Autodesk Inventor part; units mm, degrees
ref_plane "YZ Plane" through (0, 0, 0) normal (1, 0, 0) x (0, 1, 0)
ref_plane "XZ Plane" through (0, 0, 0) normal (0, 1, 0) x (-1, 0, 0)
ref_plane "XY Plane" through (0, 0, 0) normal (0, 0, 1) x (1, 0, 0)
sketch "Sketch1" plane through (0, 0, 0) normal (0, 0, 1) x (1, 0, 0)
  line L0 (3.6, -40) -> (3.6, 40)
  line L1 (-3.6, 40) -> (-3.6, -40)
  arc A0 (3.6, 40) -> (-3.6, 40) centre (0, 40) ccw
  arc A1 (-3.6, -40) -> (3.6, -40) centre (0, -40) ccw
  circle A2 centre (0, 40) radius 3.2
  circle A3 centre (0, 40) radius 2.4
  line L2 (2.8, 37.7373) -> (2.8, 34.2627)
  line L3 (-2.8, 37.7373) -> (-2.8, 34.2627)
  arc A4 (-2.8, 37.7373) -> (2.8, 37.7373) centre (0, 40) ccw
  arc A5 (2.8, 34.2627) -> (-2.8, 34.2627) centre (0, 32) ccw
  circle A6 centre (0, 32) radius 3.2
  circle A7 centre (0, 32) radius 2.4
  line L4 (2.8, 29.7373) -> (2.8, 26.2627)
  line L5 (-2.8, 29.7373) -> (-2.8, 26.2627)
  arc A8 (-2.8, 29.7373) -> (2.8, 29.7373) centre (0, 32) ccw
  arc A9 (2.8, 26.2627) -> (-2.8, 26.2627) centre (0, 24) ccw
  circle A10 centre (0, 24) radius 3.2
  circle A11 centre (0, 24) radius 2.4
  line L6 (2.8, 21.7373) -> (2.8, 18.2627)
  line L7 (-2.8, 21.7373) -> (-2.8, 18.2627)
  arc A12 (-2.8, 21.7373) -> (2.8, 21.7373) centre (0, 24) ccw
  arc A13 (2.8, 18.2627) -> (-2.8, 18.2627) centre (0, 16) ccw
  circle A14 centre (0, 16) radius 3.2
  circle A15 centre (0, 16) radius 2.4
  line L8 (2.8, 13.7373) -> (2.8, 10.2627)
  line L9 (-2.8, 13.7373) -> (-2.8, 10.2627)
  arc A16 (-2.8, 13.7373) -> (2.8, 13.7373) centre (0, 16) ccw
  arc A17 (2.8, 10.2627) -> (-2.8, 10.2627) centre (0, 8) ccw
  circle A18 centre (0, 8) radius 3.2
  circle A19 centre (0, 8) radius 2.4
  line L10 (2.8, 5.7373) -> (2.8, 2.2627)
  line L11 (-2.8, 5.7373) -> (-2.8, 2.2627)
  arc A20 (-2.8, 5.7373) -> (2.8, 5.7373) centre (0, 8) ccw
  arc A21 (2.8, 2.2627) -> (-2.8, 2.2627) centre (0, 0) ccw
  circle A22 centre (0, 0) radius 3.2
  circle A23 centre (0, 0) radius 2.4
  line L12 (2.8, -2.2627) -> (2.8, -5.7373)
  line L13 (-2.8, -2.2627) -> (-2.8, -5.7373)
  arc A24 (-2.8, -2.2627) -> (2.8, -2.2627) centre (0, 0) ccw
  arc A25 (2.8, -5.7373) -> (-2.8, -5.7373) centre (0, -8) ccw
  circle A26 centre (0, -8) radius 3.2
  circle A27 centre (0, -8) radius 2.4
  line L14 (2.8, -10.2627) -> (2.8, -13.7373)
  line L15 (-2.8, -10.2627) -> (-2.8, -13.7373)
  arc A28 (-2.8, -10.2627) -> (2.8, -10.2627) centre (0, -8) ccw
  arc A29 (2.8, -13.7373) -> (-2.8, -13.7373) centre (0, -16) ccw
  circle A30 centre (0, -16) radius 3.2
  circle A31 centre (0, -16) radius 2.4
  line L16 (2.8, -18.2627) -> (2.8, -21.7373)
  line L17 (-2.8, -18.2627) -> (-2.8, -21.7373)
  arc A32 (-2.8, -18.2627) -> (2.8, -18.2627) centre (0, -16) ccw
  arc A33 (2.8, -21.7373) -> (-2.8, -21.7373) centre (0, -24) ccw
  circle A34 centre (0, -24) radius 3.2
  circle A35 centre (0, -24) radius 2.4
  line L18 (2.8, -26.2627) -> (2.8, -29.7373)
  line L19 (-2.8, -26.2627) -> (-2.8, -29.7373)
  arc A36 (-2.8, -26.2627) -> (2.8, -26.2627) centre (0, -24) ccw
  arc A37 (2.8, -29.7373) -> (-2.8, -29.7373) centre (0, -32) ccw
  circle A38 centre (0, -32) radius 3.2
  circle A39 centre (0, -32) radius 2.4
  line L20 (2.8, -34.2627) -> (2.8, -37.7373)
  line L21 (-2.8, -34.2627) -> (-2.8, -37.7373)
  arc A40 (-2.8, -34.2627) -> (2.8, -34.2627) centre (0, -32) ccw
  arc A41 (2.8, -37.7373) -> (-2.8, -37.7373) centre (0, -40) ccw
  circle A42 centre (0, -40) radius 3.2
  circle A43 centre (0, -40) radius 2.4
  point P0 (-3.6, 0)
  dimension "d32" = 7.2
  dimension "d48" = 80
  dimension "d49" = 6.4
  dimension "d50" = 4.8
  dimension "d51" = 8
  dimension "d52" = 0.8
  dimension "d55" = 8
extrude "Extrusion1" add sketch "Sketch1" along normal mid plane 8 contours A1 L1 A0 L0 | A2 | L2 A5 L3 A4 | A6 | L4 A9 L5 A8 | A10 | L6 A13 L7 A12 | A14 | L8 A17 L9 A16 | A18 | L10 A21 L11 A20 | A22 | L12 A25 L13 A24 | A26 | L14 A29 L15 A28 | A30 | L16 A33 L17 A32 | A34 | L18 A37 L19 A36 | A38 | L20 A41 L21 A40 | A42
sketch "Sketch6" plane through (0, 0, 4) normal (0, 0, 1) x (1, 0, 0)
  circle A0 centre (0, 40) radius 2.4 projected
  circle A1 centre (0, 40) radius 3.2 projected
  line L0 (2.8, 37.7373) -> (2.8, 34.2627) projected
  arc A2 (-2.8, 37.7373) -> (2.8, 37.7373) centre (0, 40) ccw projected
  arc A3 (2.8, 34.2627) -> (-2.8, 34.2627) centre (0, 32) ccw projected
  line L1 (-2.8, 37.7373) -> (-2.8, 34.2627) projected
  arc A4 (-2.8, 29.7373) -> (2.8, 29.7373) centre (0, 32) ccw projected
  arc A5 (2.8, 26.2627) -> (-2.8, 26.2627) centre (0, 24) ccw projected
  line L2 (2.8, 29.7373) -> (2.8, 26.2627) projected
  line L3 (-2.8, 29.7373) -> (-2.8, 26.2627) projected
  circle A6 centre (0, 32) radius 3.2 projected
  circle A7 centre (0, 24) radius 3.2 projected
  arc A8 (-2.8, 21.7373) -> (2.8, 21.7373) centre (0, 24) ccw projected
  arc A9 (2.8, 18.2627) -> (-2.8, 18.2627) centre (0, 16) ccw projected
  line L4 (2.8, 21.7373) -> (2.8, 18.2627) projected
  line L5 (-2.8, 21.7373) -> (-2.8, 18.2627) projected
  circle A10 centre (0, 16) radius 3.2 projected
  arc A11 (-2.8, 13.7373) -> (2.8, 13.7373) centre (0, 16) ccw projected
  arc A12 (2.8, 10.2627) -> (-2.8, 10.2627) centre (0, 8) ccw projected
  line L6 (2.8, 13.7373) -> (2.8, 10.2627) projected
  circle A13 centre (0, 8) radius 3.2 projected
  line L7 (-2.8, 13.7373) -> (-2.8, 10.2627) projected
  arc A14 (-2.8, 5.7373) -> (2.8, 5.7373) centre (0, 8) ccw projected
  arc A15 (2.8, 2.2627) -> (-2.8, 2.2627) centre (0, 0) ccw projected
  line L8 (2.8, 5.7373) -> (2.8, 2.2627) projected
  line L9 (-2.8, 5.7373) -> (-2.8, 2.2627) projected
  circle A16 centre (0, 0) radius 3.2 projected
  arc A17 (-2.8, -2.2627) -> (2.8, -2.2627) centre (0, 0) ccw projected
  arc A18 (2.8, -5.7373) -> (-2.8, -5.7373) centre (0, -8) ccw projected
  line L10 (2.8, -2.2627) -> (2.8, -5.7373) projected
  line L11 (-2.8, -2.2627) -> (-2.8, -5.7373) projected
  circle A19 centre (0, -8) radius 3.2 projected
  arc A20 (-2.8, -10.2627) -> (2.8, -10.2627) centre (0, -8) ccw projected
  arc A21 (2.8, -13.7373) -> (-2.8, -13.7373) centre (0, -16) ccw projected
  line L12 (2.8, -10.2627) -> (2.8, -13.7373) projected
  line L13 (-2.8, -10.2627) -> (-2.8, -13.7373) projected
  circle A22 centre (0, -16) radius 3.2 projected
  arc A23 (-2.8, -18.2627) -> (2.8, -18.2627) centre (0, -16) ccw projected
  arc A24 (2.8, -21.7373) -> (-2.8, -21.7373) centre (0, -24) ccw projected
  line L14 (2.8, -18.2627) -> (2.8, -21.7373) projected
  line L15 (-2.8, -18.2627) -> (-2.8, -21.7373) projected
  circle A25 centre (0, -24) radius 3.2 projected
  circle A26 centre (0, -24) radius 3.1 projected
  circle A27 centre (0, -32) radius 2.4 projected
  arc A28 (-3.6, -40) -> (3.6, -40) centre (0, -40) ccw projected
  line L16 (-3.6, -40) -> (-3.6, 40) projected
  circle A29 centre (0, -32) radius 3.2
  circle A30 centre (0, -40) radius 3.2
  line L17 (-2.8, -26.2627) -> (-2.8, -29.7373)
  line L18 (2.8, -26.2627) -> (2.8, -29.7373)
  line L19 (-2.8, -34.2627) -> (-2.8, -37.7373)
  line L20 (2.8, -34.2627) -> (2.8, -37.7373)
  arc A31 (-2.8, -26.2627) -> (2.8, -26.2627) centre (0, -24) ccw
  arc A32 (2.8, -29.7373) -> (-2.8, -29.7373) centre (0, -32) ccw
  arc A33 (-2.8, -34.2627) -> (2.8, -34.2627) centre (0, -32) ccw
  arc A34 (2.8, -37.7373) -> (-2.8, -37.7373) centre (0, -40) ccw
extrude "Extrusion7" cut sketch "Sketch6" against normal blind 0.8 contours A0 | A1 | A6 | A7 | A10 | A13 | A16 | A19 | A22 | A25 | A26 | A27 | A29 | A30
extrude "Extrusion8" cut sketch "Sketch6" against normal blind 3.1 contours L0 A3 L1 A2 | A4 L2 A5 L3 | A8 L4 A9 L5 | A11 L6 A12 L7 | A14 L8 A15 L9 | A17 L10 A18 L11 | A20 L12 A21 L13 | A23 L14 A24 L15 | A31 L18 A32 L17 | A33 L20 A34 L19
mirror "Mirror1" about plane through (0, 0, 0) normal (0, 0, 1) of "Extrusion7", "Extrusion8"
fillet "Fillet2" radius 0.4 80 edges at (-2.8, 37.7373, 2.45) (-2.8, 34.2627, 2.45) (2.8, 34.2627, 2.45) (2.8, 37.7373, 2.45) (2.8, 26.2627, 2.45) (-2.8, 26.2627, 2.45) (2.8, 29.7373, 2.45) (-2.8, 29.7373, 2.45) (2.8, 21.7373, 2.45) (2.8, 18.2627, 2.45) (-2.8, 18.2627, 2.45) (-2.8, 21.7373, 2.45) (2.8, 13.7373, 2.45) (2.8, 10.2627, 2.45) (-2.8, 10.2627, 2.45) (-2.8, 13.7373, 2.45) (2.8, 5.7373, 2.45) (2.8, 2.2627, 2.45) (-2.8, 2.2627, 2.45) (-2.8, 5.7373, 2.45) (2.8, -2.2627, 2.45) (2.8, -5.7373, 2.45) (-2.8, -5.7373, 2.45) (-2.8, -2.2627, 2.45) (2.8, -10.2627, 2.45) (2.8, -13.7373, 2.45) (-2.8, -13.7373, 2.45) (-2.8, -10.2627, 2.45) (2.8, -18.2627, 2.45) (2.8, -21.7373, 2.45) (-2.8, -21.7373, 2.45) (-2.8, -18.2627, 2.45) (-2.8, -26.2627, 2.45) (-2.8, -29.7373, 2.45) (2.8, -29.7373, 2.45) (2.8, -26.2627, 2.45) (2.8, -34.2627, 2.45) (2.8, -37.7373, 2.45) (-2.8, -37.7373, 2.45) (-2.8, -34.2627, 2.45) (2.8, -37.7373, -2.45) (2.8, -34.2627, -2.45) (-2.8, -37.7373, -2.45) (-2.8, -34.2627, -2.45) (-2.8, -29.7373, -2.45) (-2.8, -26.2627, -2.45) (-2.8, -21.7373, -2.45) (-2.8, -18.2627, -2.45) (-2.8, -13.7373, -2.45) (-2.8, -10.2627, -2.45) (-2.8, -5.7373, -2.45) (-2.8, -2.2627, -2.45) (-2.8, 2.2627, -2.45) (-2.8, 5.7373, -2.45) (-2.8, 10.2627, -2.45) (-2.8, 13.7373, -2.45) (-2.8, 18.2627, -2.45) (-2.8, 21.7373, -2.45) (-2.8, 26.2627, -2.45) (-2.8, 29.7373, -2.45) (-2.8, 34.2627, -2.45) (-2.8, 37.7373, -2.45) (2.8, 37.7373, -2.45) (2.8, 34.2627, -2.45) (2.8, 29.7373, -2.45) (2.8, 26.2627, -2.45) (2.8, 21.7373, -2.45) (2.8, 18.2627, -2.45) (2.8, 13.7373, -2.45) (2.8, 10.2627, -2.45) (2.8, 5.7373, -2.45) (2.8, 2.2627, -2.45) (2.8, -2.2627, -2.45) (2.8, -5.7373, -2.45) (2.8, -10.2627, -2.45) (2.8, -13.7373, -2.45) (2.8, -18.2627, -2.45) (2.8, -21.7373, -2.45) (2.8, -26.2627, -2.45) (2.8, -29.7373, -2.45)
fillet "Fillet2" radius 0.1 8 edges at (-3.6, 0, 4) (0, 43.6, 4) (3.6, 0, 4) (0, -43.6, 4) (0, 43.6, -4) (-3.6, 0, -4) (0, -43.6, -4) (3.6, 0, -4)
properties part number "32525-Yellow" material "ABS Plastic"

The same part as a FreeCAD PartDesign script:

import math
import FreeCAD as App
import Part
import Sketcher


def edges_at(feature, points):
    """Names of the edges that pass closest to the given points."""
    edges = feature.Shape.Edges
    near = lambda p: min(range(len(edges)), key=lambda i: edges[i].distToShape(Part.Vertex(*p))[0])
    return sorted({f"Edge{near(p) + 1}" for p in points})

doc = App.newDocument("Part")
body = doc.addObject("PartDesign::Body", "Body")

# Sketch on XY plane
sketch1 = body.newObject("Sketcher::SketchObject", "Sketch")
sketch1.AttachmentSupport = (doc.getObject("XY_Plane"), [""])
sketch1.MapMode = "FlatFace"
sketch1.addGeometry(Part.ArcOfCircle(Part.Circle(App.Vector(0, -40, 0), App.Vector(0, 0, 1), 3.6), math.radians(180), math.radians(360)), False)
sketch1.addGeometry(Part.LineSegment(App.Vector(3.6, -40, 0), App.Vector(3.6, 40, 0)), False)
sketch1.addGeometry(Part.ArcOfCircle(Part.Circle(App.Vector(0, 40, 0), App.Vector(0, 0, 1), 3.6), math.radians(0), math.radians(180)), False)
sketch1.addGeometry(Part.LineSegment(App.Vector(-3.6, 40, 0), App.Vector(-3.6, -40, 0)), False)
sketch1.addGeometry(Part.Circle(App.Vector(0, -40, 0), App.Vector(0, 0, 1), 2.4), False)
sketch1.addGeometry(Part.Circle(App.Vector(0, -32, 0), App.Vector(0, 0, 1), 2.4), False)
sketch1.addGeometry(Part.Circle(App.Vector(0, -24, 0), App.Vector(0, 0, 1), 2.4), False)
sketch1.addGeometry(Part.Circle(App.Vector(0, -16, 0), App.Vector(0, 0, 1), 2.4), False)
sketch1.addGeometry(Part.Circle(App.Vector(0, -8, 0), App.Vector(0, 0, 1), 2.4), False)
sketch1.addGeometry(Part.Circle(App.Vector(0, 0, 0), App.Vector(0, 0, 1), 2.4), False)
sketch1.addGeometry(Part.Circle(App.Vector(0, 8, 0), App.Vector(0, 0, 1), 2.4), False)
sketch1.addGeometry(Part.Circle(App.Vector(0, 16, 0), App.Vector(0, 0, 1), 2.4), False)
sketch1.addGeometry(Part.Circle(App.Vector(0, 24, 0), App.Vector(0, 0, 1), 2.4), False)
sketch1.addGeometry(Part.Circle(App.Vector(0, 32, 0), App.Vector(0, 0, 1), 2.4), False)
sketch1.addGeometry(Part.Circle(App.Vector(0, 40, 0), App.Vector(0, 0, 1), 2.4), False)
sketch1.addConstraint(Sketcher.Constraint("Tangent", 0, 2, 1, 1))
sketch1.addConstraint(Sketcher.Constraint("Tangent", 1, 2, 2, 1))
sketch1.addConstraint(Sketcher.Constraint("Tangent", 2, 2, 3, 1))
sketch1.addConstraint(Sketcher.Constraint("Tangent", 3, 2, 0, 1))
sketch1.addConstraint(Sketcher.Constraint("Vertical", 1))
sketch1.addConstraint(Sketcher.Constraint("Vertical", 3))
sketch1.addConstraint(Sketcher.Constraint("Coincident", 9, 3, -1, 1))
sketch1.addConstraint(Sketcher.Constraint("Coincident", 4, 3, 0, 3))
sketch1.addConstraint(Sketcher.Constraint("Coincident", 14, 3, 2, 3))
sketch1.addConstraint(Sketcher.Constraint("Equal", 4, 5))
sketch1.addConstraint(Sketcher.Constraint("Equal", 5, 6))
sketch1.addConstraint(Sketcher.Constraint("Equal", 6, 7))
sketch1.addConstraint(Sketcher.Constraint("Equal", 7, 8))
sketch1.addConstraint(Sketcher.Constraint("Equal", 8, 9))
sketch1.addConstraint(Sketcher.Constraint("Equal", 9, 10))
sketch1.addConstraint(Sketcher.Constraint("Equal", 10, 11))
sketch1.addConstraint(Sketcher.Constraint("Equal", 11, 12))
sketch1.addConstraint(Sketcher.Constraint("Equal", 12, 13))
sketch1.addConstraint(Sketcher.Constraint("Equal", 13, 14))
sketch1.addConstraint(Sketcher.Constraint("Symmetric", 0, 3, 2, 3, -1, 1))
sketch1.addConstraint(Sketcher.Constraint("Symmetric", 8, 3, 10, 3, -1, 1))
sketch1.addConstraint(Sketcher.Constraint("Symmetric", 7, 3, 11, 3, -1, 1))
sketch1.addConstraint(Sketcher.Constraint("Symmetric", 6, 3, 12, 3, -1, 1))
sketch1.addConstraint(Sketcher.Constraint("Symmetric", 5, 3, 13, 3, -1, 1))
sketch1.addConstraint(Sketcher.Constraint("PointOnObject", 5, 3, -2))
sketch1.addConstraint(Sketcher.Constraint("PointOnObject", 6, 3, -2))
sketch1.addConstraint(Sketcher.Constraint("PointOnObject", 7, 3, -2))
sketch1.addConstraint(Sketcher.Constraint("PointOnObject", 8, 3, -2))
sketch1.addConstraint(Sketcher.Constraint("Diameter", 4, 4.8))
sketch1.addConstraint(Sketcher.Constraint("Radius", 0, 3.6))
sketch1.addConstraint(Sketcher.Constraint("DistanceY", 1, 1, 1, 2, 80.0))
sketch1.addConstraint(Sketcher.Constraint("DistanceY", 8, 3, -1, 1, 8.0))
sketch1.addConstraint(Sketcher.Constraint("DistanceY", 0, 3, 5, 3, 8.0))
sketch1.addConstraint(Sketcher.Constraint("DistanceY", 5, 3, 6, 3, 8.0))
sketch1.addConstraint(Sketcher.Constraint("DistanceY", 6, 3, 7, 3, 8.0))
pad1 = body.newObject("PartDesign::Pad", "Pad")
pad1.Profile = sketch1
pad1.Length = 8
pad1.Midplane = True

# Sketch on XY plane
sketch2 = body.newObject("Sketcher::SketchObject", "Sketch001")
sketch2.AttachmentSupport = (doc.getObject("XY_Plane"), [""])
sketch2.MapMode = "FlatFace"
sketch2.AttachmentOffset = App.Placement(App.Vector(0, 0, 4), App.Rotation())
sketch2.addGeometry(Part.Circle(App.Vector(0, 40, 0), App.Vector(0, 0, 1), 3.2), False)
sketch2.addGeometry(Part.Circle(App.Vector(0, 32, 0), App.Vector(0, 0, 1), 3.2), False)
sketch2.addGeometry(Part.Circle(App.Vector(0, 24, 0), App.Vector(0, 0, 1), 3.2), False)
sketch2.addGeometry(Part.Circle(App.Vector(0, 16, 0), App.Vector(0, 0, 1), 3.2), False)
sketch2.addGeometry(Part.Circle(App.Vector(0, 8, 0), App.Vector(0, 0, 1), 3.2), False)
sketch2.addGeometry(Part.Circle(App.Vector(0, 0, 0), App.Vector(0, 0, 1), 3.2), False)
sketch2.addGeometry(Part.Circle(App.Vector(0, -8, 0), App.Vector(0, 0, 1), 3.2), False)
sketch2.addGeometry(Part.Circle(App.Vector(0, -16, 0), App.Vector(0, 0, 1), 3.2), False)
sketch2.addGeometry(Part.Circle(App.Vector(0, -24, 0), App.Vector(0, 0, 1), 3.2), False)
sketch2.addGeometry(Part.Circle(App.Vector(0, -32, 0), App.Vector(0, 0, 1), 3.2), False)
sketch2.addGeometry(Part.Circle(App.Vector(0, -40, 0), App.Vector(0, 0, 1), 3.2), False)
sketch2.addConstraint(Sketcher.Constraint("Coincident", 5, 3, -1, 1))
sketch2.addConstraint(Sketcher.Constraint("Equal", 0, 1))
sketch2.addConstraint(Sketcher.Constraint("Equal", 1, 2))
sketch2.addConstraint(Sketcher.Constraint("Equal", 2, 3))
sketch2.addConstraint(Sketcher.Constraint("Equal", 3, 4))
sketch2.addConstraint(Sketcher.Constraint("Equal", 4, 5))
sketch2.addConstraint(Sketcher.Constraint("Equal", 5, 6))
sketch2.addConstraint(Sketcher.Constraint("Equal", 6, 7))
sketch2.addConstraint(Sketcher.Constraint("Equal", 7, 8))
sketch2.addConstraint(Sketcher.Constraint("Equal", 8, 9))
sketch2.addConstraint(Sketcher.Constraint("Equal", 9, 10))
sketch2.addConstraint(Sketcher.Constraint("Symmetric", 4, 3, 6, 3, -1, 1))
sketch2.addConstraint(Sketcher.Constraint("Symmetric", 3, 3, 7, 3, -1, 1))
sketch2.addConstraint(Sketcher.Constraint("Symmetric", 2, 3, 8, 3, -1, 1))
sketch2.addConstraint(Sketcher.Constraint("Symmetric", 1, 3, 9, 3, -1, 1))
sketch2.addConstraint(Sketcher.Constraint("Symmetric", 0, 3, 10, 3, -1, 1))
sketch2.addConstraint(Sketcher.Constraint("PointOnObject", 0, 3, -2))
sketch2.addConstraint(Sketcher.Constraint("PointOnObject", 1, 3, -2))
sketch2.addConstraint(Sketcher.Constraint("PointOnObject", 2, 3, -2))
sketch2.addConstraint(Sketcher.Constraint("PointOnObject", 3, 3, -2))
sketch2.addConstraint(Sketcher.Constraint("PointOnObject", 4, 3, -2))
sketch2.addConstraint(Sketcher.Constraint("Diameter", 0, 6.4))
sketch2.addConstraint(Sketcher.Constraint("DistanceY", -1, 1, 0, 3, 40.0))
sketch2.addConstraint(Sketcher.Constraint("DistanceY", -1, 1, 1, 3, 32.0))
sketch2.addConstraint(Sketcher.Constraint("DistanceY", -1, 1, 2, 3, 24.0))
sketch2.addConstraint(Sketcher.Constraint("DistanceY", -1, 1, 3, 3, 16.0))
sketch2.addConstraint(Sketcher.Constraint("DistanceY", -1, 1, 4, 3, 8.0))
pocket1 = body.newObject("PartDesign::Pocket", "Pocket")
pocket1.Profile = sketch2
pocket1.Length = 0.8

# Sketch on XY plane
sketch3 = body.newObject("Sketcher::SketchObject", "Sketch002")
sketch3.AttachmentSupport = (doc.getObject("XY_Plane"), [""])
sketch3.MapMode = "FlatFace"
sketch3.AttachmentOffset = App.Placement(App.Vector(0, 0, 4), App.Rotation())
sketch3.addGeometry(Part.LineSegment(App.Vector(2.8, 34.3, 0), App.Vector(2.8, 37.7, 0)), False)
sketch3.addGeometry(Part.ArcOfCircle(Part.Circle(App.Vector(0, 40, 0), App.Vector(0, 0, 1), 3.6), math.radians(-141), math.radians(-39)), False)
sketch3.addGeometry(Part.LineSegment(App.Vector(-2.8, 37.7, 0), App.Vector(-2.8, 34.3, 0)), False)
sketch3.addGeometry(Part.ArcOfCircle(Part.Circle(App.Vector(0, 32, 0), App.Vector(0, 0, 1), 3.6), math.radians(39), math.radians(141)), False)
sketch3.addGeometry(Part.ArcOfCircle(Part.Circle(App.Vector(0, 32, 0), App.Vector(0, 0, 1), 3.6), math.radians(-141), math.radians(-39)), False)
sketch3.addGeometry(Part.LineSegment(App.Vector(-2.8, 29.7, 0), App.Vector(-2.8, 26.3, 0)), False)
sketch3.addGeometry(Part.ArcOfCircle(Part.Circle(App.Vector(0, 24, 0), App.Vector(0, 0, 1), 3.6), math.radians(39), math.radians(141)), False)
sketch3.addGeometry(Part.LineSegment(App.Vector(2.8, 26.3, 0), App.Vector(2.8, 29.7, 0)), False)
sketch3.addGeometry(Part.ArcOfCircle(Part.Circle(App.Vector(0, 24, 0), App.Vector(0, 0, 1), 3.6), math.radians(-141), math.radians(-39)), False)
sketch3.addGeometry(Part.LineSegment(App.Vector(-2.8, 21.7, 0), App.Vector(-2.8, 18.3, 0)), False)
sketch3.addGeometry(Part.ArcOfCircle(Part.Circle(App.Vector(0, 16, 0), App.Vector(0, 0, 1), 3.6), math.radians(39), math.radians(141)), False)
sketch3.addGeometry(Part.LineSegment(App.Vector(2.8, 18.3, 0), App.Vector(2.8, 21.7, 0)), False)
sketch3.addGeometry(Part.ArcOfCircle(Part.Circle(App.Vector(0, 16, 0), App.Vector(0, 0, 1), 3.6), math.radians(-141), math.radians(-39)), False)
sketch3.addGeometry(Part.LineSegment(App.Vector(-2.8, 13.7, 0), App.Vector(-2.8, 10.3, 0)), False)
sketch3.addGeometry(Part.ArcOfCircle(Part.Circle(App.Vector(0, 8, 0), App.Vector(0, 0, 1), 3.6), math.radians(39), math.radians(141)), False)
sketch3.addGeometry(Part.LineSegment(App.Vector(2.8, 10.3, 0), App.Vector(2.8, 13.7, 0)), False)
sketch3.addGeometry(Part.ArcOfCircle(Part.Circle(App.Vector(0, 8, 0), App.Vector(0, 0, 1), 3.6), math.radians(-141), math.radians(-39)), False)
sketch3.addGeometry(Part.LineSegment(App.Vector(-2.8, 5.7, 0), App.Vector(-2.8, 2.3, 0)), False)
sketch3.addGeometry(Part.ArcOfCircle(Part.Circle(App.Vector(0, 0, 0), App.Vector(0, 0, 1), 3.6), math.radians(39), math.radians(141)), False)
sketch3.addGeometry(Part.LineSegment(App.Vector(2.8, 2.3, 0), App.Vector(2.8, 5.7, 0)), False)
sketch3.addGeometry(Part.ArcOfCircle(Part.Circle(App.Vector(0, 0, 0), App.Vector(0, 0, 1), 3.6), math.radians(-141), math.radians(-39)), False)
sketch3.addGeometry(Part.LineSegment(App.Vector(-2.8, -2.3, 0), App.Vector(-2.8, -5.7, 0)), False)
sketch3.addGeometry(Part.ArcOfCircle(Part.Circle(App.Vector(0, -8, 0), App.Vector(0, 0, 1), 3.6), math.radians(39), math.radians(141)), False)
sketch3.addGeometry(Part.LineSegment(App.Vector(2.8, -5.7, 0), App.Vector(2.8, -2.3, 0)), False)
sketch3.addGeometry(Part.ArcOfCircle(Part.Circle(App.Vector(0, -8, 0), App.Vector(0, 0, 1), 3.6), math.radians(-141), math.radians(-39)), False)
sketch3.addGeometry(Part.LineSegment(App.Vector(-2.8, -10.3, 0), App.Vector(-2.8, -13.7, 0)), False)
sketch3.addGeometry(Part.ArcOfCircle(Part.Circle(App.Vector(0, -16, 0), App.Vector(0, 0, 1), 3.6), math.radians(39), math.radians(141)), False)
sketch3.addGeometry(Part.LineSegment(App.Vector(2.8, -13.7, 0), App.Vector(2.8, -10.3, 0)), False)
sketch3.addGeometry(Part.ArcOfCircle(Part.Circle(App.Vector(0, -16, 0), App.Vector(0, 0, 1), 3.6), math.radians(-141), math.radians(-39)), False)
sketch3.addGeometry(Part.LineSegment(App.Vector(-2.8, -18.3, 0), App.Vector(-2.8, -21.7, 0)), False)
sketch3.addGeometry(Part.ArcOfCircle(Part.Circle(App.Vector(0, -24, 0), App.Vector(0, 0, 1), 3.6), math.radians(39), math.radians(141)), False)
sketch3.addGeometry(Part.LineSegment(App.Vector(2.8, -21.7, 0), App.Vector(2.8, -18.3, 0)), False)
sketch3.addGeometry(Part.ArcOfCircle(Part.Circle(App.Vector(0, -24, 0), App.Vector(0, 0, 1), 3.6), math.radians(-141), math.radians(-39)), False)
sketch3.addGeometry(Part.LineSegment(App.Vector(-2.8, -26.3, 0), App.Vector(-2.8, -29.7, 0)), False)
sketch3.addGeometry(Part.ArcOfCircle(Part.Circle(App.Vector(0, -32, 0), App.Vector(0, 0, 1), 3.6), math.radians(39), math.radians(141)), False)
sketch3.addGeometry(Part.LineSegment(App.Vector(2.8, -29.7, 0), App.Vector(2.8, -26.3, 0)), False)
sketch3.addGeometry(Part.ArcOfCircle(Part.Circle(App.Vector(0, -32, 0), App.Vector(0, 0, 1), 3.6), math.radians(-141), math.radians(-39)), False)
sketch3.addGeometry(Part.LineSegment(App.Vector(-2.8, -34.3, 0), App.Vector(-2.8, -37.7, 0)), False)
sketch3.addGeometry(Part.ArcOfCircle(Part.Circle(App.Vector(0, -40, 0), App.Vector(0, 0, 1), 3.6), math.radians(39), math.radians(141)), False)
sketch3.addGeometry(Part.LineSegment(App.Vector(2.8, -37.7, 0), App.Vector(2.8, -34.3, 0)), False)
sketch3.addConstraint(Sketcher.Constraint("Coincident", 0, 2, 1, 2))
sketch3.addConstraint(Sketcher.Constraint("Coincident", 1, 1, 2, 1))
sketch3.addConstraint(Sketcher.Constraint("Coincident", 2, 2, 3, 2))
sketch3.addConstraint(Sketcher.Constraint("Coincident", 3, 1, 0, 1))
sketch3.addConstraint(Sketcher.Constraint("Coincident", 4, 1, 5, 1))
sketch3.addConstraint(Sketcher.Constraint("Coincident", 5, 2, 6, 2))
sketch3.addConstraint(Sketcher.Constraint("Coincident", 6, 1, 7, 1))
sketch3.addConstraint(Sketcher.Constraint("Coincident", 7, 2, 4, 2))
sketch3.addConstraint(Sketcher.Constraint("Coincident", 8, 1, 9, 1))
sketch3.addConstraint(Sketcher.Constraint("Coincident", 9, 2, 10, 2))
sketch3.addConstraint(Sketcher.Constraint("Coincident", 10, 1, 11, 1))
sketch3.addConstraint(Sketcher.Constraint("Coincident", 11, 2, 8, 2))
sketch3.addConstraint(Sketcher.Constraint("Coincident", 12, 1, 13, 1))
sketch3.addConstraint(Sketcher.Constraint("Coincident", 13, 2, 14, 2))
sketch3.addConstraint(Sketcher.Constraint("Coincident", 14, 1, 15, 1))
sketch3.addConstraint(Sketcher.Constraint("Coincident", 15, 2, 12, 2))
sketch3.addConstraint(Sketcher.Constraint("Coincident", 16, 1, 17, 1))
sketch3.addConstraint(Sketcher.Constraint("Coincident", 17, 2, 18, 2))
sketch3.addConstraint(Sketcher.Constraint("Coincident", 18, 1, 19, 1))
sketch3.addConstraint(Sketcher.Constraint("Coincident", 19, 2, 16, 2))
sketch3.addConstraint(Sketcher.Constraint("Coincident", 20, 1, 21, 1))
sketch3.addConstraint(Sketcher.Constraint("Coincident", 21, 2, 22, 2))
sketch3.addConstraint(Sketcher.Constraint("Coincident", 22, 1, 23, 1))
sketch3.addConstraint(Sketcher.Constraint("Coincident", 23, 2, 20, 2))
sketch3.addConstraint(Sketcher.Constraint("Coincident", 24, 1, 25, 1))
sketch3.addConstraint(Sketcher.Constraint("Coincident", 25, 2, 26, 2))
sketch3.addConstraint(Sketcher.Constraint("Coincident", 26, 1, 27, 1))
sketch3.addConstraint(Sketcher.Constraint("Coincident", 27, 2, 24, 2))
sketch3.addConstraint(Sketcher.Constraint("Coincident", 28, 1, 29, 1))
sketch3.addConstraint(Sketcher.Constraint("Coincident", 29, 2, 30, 2))
sketch3.addConstraint(Sketcher.Constraint("Coincident", 30, 1, 31, 1))
sketch3.addConstraint(Sketcher.Constraint("Coincident", 31, 2, 28, 2))
sketch3.addConstraint(Sketcher.Constraint("Coincident", 32, 1, 33, 1))
sketch3.addConstraint(Sketcher.Constraint("Coincident", 33, 2, 34, 2))
sketch3.addConstraint(Sketcher.Constraint("Coincident", 34, 1, 35, 1))
sketch3.addConstraint(Sketcher.Constraint("Coincident", 35, 2, 32, 2))
sketch3.addConstraint(Sketcher.Constraint("Coincident", 36, 1, 37, 1))
sketch3.addConstraint(Sketcher.Constraint("Coincident", 37, 2, 38, 2))
sketch3.addConstraint(Sketcher.Constraint("Coincident", 38, 1, 39, 1))
sketch3.addConstraint(Sketcher.Constraint("Coincident", 39, 2, 36, 2))
sketch3.addConstraint(Sketcher.Constraint("Vertical", 0))
sketch3.addConstraint(Sketcher.Constraint("Vertical", 2))
sketch3.addConstraint(Sketcher.Constraint("Vertical", 5))
sketch3.addConstraint(Sketcher.Constraint("Vertical", 7))
sketch3.addConstraint(Sketcher.Constraint("Vertical", 9))
sketch3.addConstraint(Sketcher.Constraint("Vertical", 11))
sketch3.addConstraint(Sketcher.Constraint("Vertical", 13))
sketch3.addConstraint(Sketcher.Constraint("Vertical", 15))
sketch3.addConstraint(Sketcher.Constraint("Vertical", 17))
sketch3.addConstraint(Sketcher.Constraint("Vertical", 19))
sketch3.addConstraint(Sketcher.Constraint("Vertical", 21))
sketch3.addConstraint(Sketcher.Constraint("Vertical", 23))
sketch3.addConstraint(Sketcher.Constraint("Vertical", 25))
sketch3.addConstraint(Sketcher.Constraint("Vertical", 27))
sketch3.addConstraint(Sketcher.Constraint("Vertical", 29))
sketch3.addConstraint(Sketcher.Constraint("Vertical", 31))
sketch3.addConstraint(Sketcher.Constraint("Vertical", 33))
sketch3.addConstraint(Sketcher.Constraint("Vertical", 35))
sketch3.addConstraint(Sketcher.Constraint("Vertical", 37))
sketch3.addConstraint(Sketcher.Constraint("Vertical", 39))
sketch3.addConstraint(Sketcher.Constraint("Coincident", 18, 3, -1, 1))
sketch3.addConstraint(Sketcher.Constraint("Coincident", 20, 3, -1, 1))
sketch3.addConstraint(Sketcher.Constraint("Coincident", 4, 3, 3, 3))
sketch3.addConstraint(Sketcher.Constraint("Coincident", 8, 3, 6, 3))
sketch3.addConstraint(Sketcher.Constraint("Coincident", 12, 3, 10, 3))
sketch3.addConstraint(Sketcher.Constraint("Coincident", 16, 3, 14, 3))
sketch3.addConstraint(Sketcher.Constraint("Coincident", 24, 3, 22, 3))
sketch3.addConstraint(Sketcher.Constraint("Coincident", 28, 3, 26, 3))
sketch3.addConstraint(Sketcher.Constraint("Coincident", 32, 3, 30, 3))
sketch3.addConstraint(Sketcher.Constraint("Coincident", 36, 3, 34, 3))
sketch3.addConstraint(Sketcher.Constraint("Equal", 1, 3))
sketch3.addConstraint(Sketcher.Constraint("Equal", 3, 4))
sketch3.addConstraint(Sketcher.Constraint("Equal", 4, 6))
sketch3.addConstraint(Sketcher.Constraint("Equal", 6, 8))
sketch3.addConstraint(Sketcher.Constraint("Equal", 8, 10))
sketch3.addConstraint(Sketcher.Constraint("Equal", 10, 12))
sketch3.addConstraint(Sketcher.Constraint("Equal", 12, 14))
sketch3.addConstraint(Sketcher.Constraint("Equal", 14, 16))
sketch3.addConstraint(Sketcher.Constraint("Equal", 16, 18))
sketch3.addConstraint(Sketcher.Constraint("Equal", 18, 20))
sketch3.addConstraint(Sketcher.Constraint("Equal", 20, 22))
sketch3.addConstraint(Sketcher.Constraint("Equal", 22, 24))
sketch3.addConstraint(Sketcher.Constraint("Equal", 24, 26))
sketch3.addConstraint(Sketcher.Constraint("Equal", 26, 28))
sketch3.addConstraint(Sketcher.Constraint("Equal", 28, 30))
sketch3.addConstraint(Sketcher.Constraint("Equal", 30, 32))
sketch3.addConstraint(Sketcher.Constraint("Equal", 32, 34))
sketch3.addConstraint(Sketcher.Constraint("Equal", 34, 36))
sketch3.addConstraint(Sketcher.Constraint("Equal", 36, 38))
sketch3.addConstraint(Sketcher.Constraint("Symmetric", 14, 3, 22, 3, -1, 1))
sketch3.addConstraint(Sketcher.Constraint("Symmetric", 10, 3, 26, 3, -1, 1))
sketch3.addConstraint(Sketcher.Constraint("Symmetric", 6, 3, 30, 3, -1, 1))
sketch3.addConstraint(Sketcher.Constraint("Symmetric", 3, 3, 34, 3, -1, 1))
sketch3.addConstraint(Sketcher.Constraint("Symmetric", 1, 3, 38, 3, -1, 1))
sketch3.addConstraint(Sketcher.Constraint("Symmetric", 0, 2, 1, 1, -2))
sketch3.addConstraint(Sketcher.Constraint("Symmetric", 5, 2, 6, 1, -2))
sketch3.addConstraint(Sketcher.Constraint("Symmetric", 9, 2, 10, 1, -2))
sketch3.addConstraint(Sketcher.Constraint("Symmetric", 13, 2, 14, 1, -2))
sketch3.addConstraint(Sketcher.Constraint("Symmetric", 33, 2, 34, 1, -2))
sketch3.addConstraint(Sketcher.Constraint("Horizontal", 17, 2, 18, 1))
sketch3.addConstraint(Sketcher.Constraint("Horizontal", 21, 2, 22, 1))
sketch3.addConstraint(Sketcher.Constraint("Horizontal", 25, 2, 26, 1))
sketch3.addConstraint(Sketcher.Constraint("Horizontal", 29, 2, 30, 1))
sketch3.addConstraint(Sketcher.Constraint("Horizontal", 37, 2, 38, 1))
sketch3.addConstraint(Sketcher.Constraint("Vertical", 2, 2, 4, 1))
sketch3.addConstraint(Sketcher.Constraint("Vertical", 5, 2, 8, 1))
sketch3.addConstraint(Sketcher.Constraint("Vertical", 9, 2, 12, 1))
sketch3.addConstraint(Sketcher.Constraint("Vertical", 13, 2, 16, 1))
sketch3.addConstraint(Sketcher.Constraint("Vertical", 17, 2, 20, 1))
sketch3.addConstraint(Sketcher.Constraint("Vertical", 21, 2, 24, 1))
sketch3.addConstraint(Sketcher.Constraint("Vertical", 25, 2, 28, 1))
sketch3.addConstraint(Sketcher.Constraint("Vertical", 29, 2, 32, 1))
sketch3.addConstraint(Sketcher.Constraint("Vertical", 33, 2, 36, 1))
sketch3.addConstraint(Sketcher.Constraint("Equal", 2, 5))
sketch3.addConstraint(Sketcher.Constraint("Equal", 7, 9))
sketch3.addConstraint(Sketcher.Constraint("Equal", 11, 13))
sketch3.addConstraint(Sketcher.Constraint("Equal", 15, 17))
sketch3.addConstraint(Sketcher.Constraint("Radius", 1, 3.6))
sketch3.addConstraint(Sketcher.Constraint("DistanceY", -1, 1, 1, 3, 40.0))
sketch3.addConstraint(Sketcher.Constraint("DistanceX", -1, 1, 0, 2, 2.8))
pocket2 = body.newObject("PartDesign::Pocket", "Pocket001")
pocket2.Profile = sketch3
pocket2.Length = 3.1
doc.recompute()

mirrored = body.newObject("PartDesign::Mirrored", "Mirrored")
mirrored.Originals = [pocket1, pocket2]
mirrored.MirrorPlane = (doc.getObject("XY_Plane"), [""])
body.Tip = mirrored
doc.recompute()

fillet = body.newObject("PartDesign::Fillet", "Fillet")
fillet.Base = (mirrored, edges_at(mirrored, [
    (-2.8, 37.737, 2.45),
    (-2.8, 34.263, 2.45),
    (2.8, 34.263, 2.45),
    (2.8, 37.737, 2.45),
    (2.8, 26.263, 2.45),
    (-2.8, 26.263, 2.45),
    (2.8, 29.737, 2.45),
    (-2.8, 29.737, 2.45),
    (2.8, 21.737, 2.45),
    (2.8, 18.263, 2.45),
    (-2.8, 18.263, 2.45),
    (-2.8, 21.737, 2.45),
    (2.8, 13.737, 2.45),
    (2.8, 10.263, 2.45),
    (-2.8, 10.263, 2.45),
    (-2.8, 13.737, 2.45),
    (2.8, 5.737, 2.45),
    (2.8, 2.263, 2.45),
    (-2.8, 2.263, 2.45),
    (-2.8, 5.737, 2.45),
    (2.8, -2.263, 2.45),
    (2.8, -5.737, 2.45),
    (-2.8, -5.737, 2.45),
    (-2.8, -2.263, 2.45),
    (2.8, -10.263, 2.45),
    (2.8, -13.737, 2.45),
    (-2.8, -13.737, 2.45),
    (-2.8, -10.263, 2.45),
    (2.8, -18.263, 2.45),
    (2.8, -21.737, 2.45),
    (-2.8, -21.737, 2.45),
    (-2.8, -18.263, 2.45),
    (-2.8, -26.263, 2.45),
    (-2.8, -29.737, 2.45),
    (2.8, -29.737, 2.45),
    (2.8, -26.263, 2.45),
    (2.8, -34.263, 2.45),
    (2.8, -37.737, 2.45),
    (-2.8, -37.737, 2.45),
    (-2.8, -34.263, 2.45),
    (2.8, -37.737, -2.45),
    (2.8, -34.263, -2.45),
    (-2.8, -37.737, -2.45),
    (-2.8, -34.263, -2.45),
    (-2.8, -29.737, -2.45),
    (-2.8, -26.263, -2.45),
    (-2.8, -21.737, -2.45),
    (-2.8, -18.263, -2.45),
    (-2.8, -13.737, -2.45),
    (-2.8, -10.263, -2.45),
    (-2.8, -5.737, -2.45),
    (-2.8, -2.263, -2.45),
    (-2.8, 2.263, -2.45),
    (-2.8, 5.737, -2.45),
    (-2.8, 10.263, -2.45),
    (-2.8, 13.737, -2.45),
    (-2.8, 18.263, -2.45),
    (-2.8, 21.737, -2.45),
    (-2.8, 26.263, -2.45),
    (-2.8, 29.737, -2.45),
    (-2.8, 34.263, -2.45),
    (-2.8, 37.737, -2.45),
    (2.8, 37.737, -2.45),
    (2.8, 34.263, -2.45),
    (2.8, 29.737, -2.45),
    (2.8, 26.263, -2.45),
    (2.8, 21.737, -2.45),
    (2.8, 18.263, -2.45),
    (2.8, 13.737, -2.45),
    (2.8, 10.263, -2.45),
    (2.8, 5.737, -2.45),
    (2.8, 2.263, -2.45),
    (2.8, -2.263, -2.45),
    (2.8, -5.737, -2.45),
    (2.8, -10.263, -2.45),
    (2.8, -13.737, -2.45),
    (2.8, -18.263, -2.45),
    (2.8, -21.737, -2.45),
    (2.8, -26.263, -2.45),
    (2.8, -29.737, -2.45),
]))
fillet.Radius = 0.4
doc.recompute()

fillet2 = body.newObject("PartDesign::Fillet", "Fillet001")
fillet2.Base = (fillet, edges_at(fillet, [
    (-3.6, 0, 4),
    (0, 43.6, 4),
    (3.6, 0, 4),
    (0, -43.6, 4),
    (0, 43.6, -4),
    (-3.6, 0, -4),
    (0, -43.6, -4),
    (3.6, 0, -4),
]))
fillet2.Radius = 0.1

doc.recompute()
